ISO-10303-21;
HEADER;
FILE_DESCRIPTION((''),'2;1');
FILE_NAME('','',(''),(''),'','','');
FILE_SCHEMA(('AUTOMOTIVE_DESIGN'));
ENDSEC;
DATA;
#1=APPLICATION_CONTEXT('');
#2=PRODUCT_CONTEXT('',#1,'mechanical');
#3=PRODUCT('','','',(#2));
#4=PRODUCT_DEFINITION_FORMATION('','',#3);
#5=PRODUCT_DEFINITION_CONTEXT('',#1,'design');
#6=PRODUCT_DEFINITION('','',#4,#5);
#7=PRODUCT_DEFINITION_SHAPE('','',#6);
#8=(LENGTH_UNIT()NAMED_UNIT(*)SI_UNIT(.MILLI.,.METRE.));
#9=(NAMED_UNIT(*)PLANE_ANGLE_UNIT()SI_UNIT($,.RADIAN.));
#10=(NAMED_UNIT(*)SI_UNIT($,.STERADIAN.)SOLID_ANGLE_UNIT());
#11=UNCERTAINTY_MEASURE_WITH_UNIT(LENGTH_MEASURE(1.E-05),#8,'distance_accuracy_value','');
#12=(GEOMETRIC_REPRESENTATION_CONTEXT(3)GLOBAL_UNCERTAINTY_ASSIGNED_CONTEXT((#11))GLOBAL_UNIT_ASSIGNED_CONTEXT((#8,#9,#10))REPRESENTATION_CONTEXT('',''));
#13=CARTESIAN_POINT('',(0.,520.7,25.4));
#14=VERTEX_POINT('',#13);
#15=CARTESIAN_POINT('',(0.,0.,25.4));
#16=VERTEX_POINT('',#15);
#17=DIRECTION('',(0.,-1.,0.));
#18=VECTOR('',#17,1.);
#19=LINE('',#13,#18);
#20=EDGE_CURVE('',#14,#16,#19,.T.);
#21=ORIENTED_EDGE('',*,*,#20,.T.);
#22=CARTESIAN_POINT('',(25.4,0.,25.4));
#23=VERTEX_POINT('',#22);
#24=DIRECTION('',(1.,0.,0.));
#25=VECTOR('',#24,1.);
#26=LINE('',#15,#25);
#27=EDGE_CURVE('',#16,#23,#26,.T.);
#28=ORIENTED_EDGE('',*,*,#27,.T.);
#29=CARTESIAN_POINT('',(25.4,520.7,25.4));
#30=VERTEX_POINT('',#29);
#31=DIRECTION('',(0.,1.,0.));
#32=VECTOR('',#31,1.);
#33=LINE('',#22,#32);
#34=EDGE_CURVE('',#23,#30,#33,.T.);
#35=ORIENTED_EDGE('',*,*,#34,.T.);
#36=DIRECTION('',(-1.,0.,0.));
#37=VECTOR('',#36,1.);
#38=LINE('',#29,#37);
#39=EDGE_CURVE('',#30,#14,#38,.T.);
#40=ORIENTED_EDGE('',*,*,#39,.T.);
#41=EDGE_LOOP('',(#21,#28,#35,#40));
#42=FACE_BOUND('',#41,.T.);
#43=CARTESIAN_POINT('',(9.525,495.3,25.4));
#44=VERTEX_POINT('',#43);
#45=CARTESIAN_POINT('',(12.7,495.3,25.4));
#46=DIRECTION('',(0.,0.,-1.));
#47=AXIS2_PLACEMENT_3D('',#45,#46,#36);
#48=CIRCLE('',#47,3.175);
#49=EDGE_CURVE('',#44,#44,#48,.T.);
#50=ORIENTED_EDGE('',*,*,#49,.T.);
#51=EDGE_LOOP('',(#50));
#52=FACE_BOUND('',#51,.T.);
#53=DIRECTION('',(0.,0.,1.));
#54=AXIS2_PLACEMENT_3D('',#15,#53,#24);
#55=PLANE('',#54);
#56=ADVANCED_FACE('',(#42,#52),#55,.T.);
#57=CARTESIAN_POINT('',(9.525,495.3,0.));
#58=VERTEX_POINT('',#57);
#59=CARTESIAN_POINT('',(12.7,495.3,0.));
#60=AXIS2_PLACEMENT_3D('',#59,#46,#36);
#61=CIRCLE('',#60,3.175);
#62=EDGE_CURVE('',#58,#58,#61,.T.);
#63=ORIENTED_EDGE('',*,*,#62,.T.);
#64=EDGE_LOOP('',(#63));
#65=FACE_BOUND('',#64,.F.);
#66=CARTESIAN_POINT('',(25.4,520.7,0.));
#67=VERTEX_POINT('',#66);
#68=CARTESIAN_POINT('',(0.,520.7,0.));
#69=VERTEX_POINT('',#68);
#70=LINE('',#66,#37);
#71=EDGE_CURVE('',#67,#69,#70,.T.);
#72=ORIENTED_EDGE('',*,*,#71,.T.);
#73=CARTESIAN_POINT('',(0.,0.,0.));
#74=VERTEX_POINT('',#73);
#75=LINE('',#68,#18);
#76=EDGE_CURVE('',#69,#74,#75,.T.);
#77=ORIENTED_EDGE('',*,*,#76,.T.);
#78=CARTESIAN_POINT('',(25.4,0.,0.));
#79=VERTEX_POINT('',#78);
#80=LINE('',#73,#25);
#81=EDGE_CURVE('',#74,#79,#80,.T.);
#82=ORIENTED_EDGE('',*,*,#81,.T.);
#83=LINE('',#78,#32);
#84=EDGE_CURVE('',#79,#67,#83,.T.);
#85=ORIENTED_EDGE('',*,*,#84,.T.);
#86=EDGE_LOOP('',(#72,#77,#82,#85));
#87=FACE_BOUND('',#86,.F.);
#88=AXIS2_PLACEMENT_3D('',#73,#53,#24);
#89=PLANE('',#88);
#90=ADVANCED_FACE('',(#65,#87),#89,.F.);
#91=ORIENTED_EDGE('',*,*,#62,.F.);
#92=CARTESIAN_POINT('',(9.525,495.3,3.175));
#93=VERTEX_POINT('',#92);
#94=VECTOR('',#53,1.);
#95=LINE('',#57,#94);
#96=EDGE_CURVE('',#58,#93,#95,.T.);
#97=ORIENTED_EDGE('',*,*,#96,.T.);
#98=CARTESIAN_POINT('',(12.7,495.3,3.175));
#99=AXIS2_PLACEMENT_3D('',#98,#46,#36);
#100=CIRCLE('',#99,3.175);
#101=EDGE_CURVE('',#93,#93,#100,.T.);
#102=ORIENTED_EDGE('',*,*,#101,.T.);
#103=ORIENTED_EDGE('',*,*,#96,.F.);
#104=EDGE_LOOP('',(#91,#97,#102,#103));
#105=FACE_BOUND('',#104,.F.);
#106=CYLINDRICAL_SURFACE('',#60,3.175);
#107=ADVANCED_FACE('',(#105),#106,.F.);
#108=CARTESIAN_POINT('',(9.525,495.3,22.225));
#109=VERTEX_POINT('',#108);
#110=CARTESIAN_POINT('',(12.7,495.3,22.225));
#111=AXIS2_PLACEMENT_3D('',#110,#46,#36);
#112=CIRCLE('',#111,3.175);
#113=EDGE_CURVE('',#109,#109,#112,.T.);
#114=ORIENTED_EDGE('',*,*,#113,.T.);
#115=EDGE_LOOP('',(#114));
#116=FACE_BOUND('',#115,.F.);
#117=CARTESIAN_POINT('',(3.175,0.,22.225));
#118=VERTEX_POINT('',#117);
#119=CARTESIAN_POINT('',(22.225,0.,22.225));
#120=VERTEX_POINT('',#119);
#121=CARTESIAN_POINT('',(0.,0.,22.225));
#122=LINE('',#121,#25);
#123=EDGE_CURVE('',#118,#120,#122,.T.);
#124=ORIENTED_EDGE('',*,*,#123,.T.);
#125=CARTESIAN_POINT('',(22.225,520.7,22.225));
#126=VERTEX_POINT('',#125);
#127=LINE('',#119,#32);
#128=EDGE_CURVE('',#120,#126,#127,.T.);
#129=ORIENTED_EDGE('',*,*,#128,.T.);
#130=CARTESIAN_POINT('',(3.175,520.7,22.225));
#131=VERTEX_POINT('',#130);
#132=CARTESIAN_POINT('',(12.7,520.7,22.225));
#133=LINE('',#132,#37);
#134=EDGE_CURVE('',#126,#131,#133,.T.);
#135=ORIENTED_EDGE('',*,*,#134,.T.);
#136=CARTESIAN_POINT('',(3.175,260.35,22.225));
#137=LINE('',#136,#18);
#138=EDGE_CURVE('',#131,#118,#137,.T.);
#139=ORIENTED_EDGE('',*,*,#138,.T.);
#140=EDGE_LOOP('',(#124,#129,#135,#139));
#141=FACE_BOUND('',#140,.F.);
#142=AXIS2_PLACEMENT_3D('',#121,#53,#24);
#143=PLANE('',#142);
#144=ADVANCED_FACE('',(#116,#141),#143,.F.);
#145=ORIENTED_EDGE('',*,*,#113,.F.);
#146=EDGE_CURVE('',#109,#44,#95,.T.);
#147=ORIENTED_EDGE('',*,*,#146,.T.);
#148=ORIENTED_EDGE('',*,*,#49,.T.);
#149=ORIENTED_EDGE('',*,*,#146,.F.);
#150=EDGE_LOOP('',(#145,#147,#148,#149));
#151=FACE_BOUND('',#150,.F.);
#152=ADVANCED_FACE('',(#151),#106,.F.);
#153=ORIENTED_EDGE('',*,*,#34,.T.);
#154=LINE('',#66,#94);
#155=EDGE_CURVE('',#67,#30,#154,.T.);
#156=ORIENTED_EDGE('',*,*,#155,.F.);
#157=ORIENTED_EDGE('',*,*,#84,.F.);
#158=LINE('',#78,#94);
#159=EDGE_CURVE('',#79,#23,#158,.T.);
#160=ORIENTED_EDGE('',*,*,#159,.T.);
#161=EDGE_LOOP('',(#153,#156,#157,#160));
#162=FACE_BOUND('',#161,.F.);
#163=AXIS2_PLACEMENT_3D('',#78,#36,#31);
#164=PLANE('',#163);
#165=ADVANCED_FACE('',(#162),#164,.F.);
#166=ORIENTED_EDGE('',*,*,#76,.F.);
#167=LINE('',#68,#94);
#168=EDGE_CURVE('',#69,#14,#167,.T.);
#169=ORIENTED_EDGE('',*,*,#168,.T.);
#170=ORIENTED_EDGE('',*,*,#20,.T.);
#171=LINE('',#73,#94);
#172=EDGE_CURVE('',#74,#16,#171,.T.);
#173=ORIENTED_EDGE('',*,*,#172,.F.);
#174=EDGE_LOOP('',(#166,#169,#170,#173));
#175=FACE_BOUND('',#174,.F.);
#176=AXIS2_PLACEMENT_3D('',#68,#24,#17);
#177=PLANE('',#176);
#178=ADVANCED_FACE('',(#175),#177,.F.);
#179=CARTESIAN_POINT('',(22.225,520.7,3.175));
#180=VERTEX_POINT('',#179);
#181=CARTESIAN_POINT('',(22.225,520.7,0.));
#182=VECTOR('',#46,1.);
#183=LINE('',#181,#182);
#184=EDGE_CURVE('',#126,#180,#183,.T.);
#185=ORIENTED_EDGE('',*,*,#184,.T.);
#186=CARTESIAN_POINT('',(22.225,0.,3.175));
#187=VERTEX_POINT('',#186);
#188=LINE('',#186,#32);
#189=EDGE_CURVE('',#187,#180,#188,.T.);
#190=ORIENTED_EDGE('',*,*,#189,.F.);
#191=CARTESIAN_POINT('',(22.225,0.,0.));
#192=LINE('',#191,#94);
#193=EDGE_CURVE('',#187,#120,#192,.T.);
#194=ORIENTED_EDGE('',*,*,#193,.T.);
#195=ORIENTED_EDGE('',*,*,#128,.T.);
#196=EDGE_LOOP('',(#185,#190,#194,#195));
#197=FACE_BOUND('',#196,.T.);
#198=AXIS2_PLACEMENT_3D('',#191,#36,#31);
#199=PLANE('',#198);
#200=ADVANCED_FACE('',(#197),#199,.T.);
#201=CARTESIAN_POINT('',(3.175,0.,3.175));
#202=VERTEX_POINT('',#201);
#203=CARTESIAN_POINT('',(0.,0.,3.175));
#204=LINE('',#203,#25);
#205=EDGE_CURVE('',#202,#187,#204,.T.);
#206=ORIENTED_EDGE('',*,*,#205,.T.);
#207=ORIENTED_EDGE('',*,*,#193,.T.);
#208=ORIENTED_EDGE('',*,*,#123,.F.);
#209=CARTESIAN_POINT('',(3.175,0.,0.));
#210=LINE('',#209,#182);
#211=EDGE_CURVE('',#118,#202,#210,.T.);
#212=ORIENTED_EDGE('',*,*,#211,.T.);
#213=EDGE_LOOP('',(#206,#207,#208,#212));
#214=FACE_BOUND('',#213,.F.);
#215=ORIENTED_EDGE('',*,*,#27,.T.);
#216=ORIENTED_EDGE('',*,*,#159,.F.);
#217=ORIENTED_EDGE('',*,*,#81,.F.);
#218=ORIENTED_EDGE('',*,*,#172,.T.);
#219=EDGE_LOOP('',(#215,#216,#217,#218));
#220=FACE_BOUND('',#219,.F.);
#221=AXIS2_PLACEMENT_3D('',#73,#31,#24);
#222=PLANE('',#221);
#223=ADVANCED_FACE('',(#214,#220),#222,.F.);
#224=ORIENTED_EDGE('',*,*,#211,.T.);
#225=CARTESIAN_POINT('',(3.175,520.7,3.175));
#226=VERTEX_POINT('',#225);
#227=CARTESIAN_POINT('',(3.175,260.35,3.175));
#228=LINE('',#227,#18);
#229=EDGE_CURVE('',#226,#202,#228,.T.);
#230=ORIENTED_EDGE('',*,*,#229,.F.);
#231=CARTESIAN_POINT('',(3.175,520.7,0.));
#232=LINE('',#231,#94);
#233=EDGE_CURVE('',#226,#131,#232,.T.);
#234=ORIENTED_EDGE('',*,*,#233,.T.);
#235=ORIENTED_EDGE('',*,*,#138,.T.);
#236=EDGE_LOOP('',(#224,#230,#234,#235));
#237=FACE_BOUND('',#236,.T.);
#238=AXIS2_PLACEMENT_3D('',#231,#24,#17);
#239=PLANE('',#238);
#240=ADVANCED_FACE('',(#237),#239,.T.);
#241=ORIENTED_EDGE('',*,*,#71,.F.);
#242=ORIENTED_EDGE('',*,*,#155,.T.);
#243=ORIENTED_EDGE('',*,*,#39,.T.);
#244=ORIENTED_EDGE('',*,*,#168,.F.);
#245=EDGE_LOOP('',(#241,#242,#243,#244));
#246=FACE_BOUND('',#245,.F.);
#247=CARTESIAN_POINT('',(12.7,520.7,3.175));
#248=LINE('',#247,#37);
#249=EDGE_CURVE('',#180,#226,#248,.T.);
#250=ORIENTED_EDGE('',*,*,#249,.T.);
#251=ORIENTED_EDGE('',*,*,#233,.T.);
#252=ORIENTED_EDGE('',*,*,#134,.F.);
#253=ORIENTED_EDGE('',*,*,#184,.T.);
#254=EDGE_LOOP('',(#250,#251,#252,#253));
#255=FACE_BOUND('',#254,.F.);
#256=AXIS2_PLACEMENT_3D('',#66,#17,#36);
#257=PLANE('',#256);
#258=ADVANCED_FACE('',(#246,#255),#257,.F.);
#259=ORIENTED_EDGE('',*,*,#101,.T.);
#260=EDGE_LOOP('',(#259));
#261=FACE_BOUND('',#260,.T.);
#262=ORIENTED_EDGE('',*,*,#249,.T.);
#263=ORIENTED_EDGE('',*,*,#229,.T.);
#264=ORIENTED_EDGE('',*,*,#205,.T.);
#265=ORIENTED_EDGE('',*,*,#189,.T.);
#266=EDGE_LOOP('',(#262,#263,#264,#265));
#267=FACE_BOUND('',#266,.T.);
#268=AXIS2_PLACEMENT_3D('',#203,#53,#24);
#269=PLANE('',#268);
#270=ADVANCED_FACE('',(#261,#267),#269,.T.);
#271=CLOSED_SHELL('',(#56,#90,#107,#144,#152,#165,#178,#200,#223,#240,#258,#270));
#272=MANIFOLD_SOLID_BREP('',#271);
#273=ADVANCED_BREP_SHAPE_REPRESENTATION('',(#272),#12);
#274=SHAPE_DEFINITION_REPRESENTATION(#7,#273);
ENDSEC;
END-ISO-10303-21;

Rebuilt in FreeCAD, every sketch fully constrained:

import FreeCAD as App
import Part
import Sketcher
from FreeCAD import Vector
Q = App.Units.Quantity


def faces_at(feature, points):
    """Names of the faces that lie closest to the given points."""
    faces = feature.Shape.Faces
    near = lambda p: min(range(len(faces)), key=lambda i: faces[i].distToShape(Part.Vertex(*p))[0])
    return sorted({f"Face{near(p) + 1}" for p in points})


def add_polygon(sketch, points):
    """Adds a closed chain of lines whose ends are joined by coincident constraints."""
    first, n = sketch.GeometryCount, len(points)
    for a, b in zip(points, points[1:] + points[:1]):
        sketch.addGeometry(Part.LineSegment(App.Vector(*a, 0), App.Vector(*b, 0)), False)
    for i in range(n):
        sketch.addConstraint(Sketcher.Constraint("Coincident", first + i, 2, first + (i + 1) % n, 1))

doc = App.newDocument("Part")
body = doc.addObject("PartDesign::Body", "Body")

# Sketch on XY plane
sketch1 = doc.addObject("Sketcher::SketchObject", "Sketch")
body.addObject(sketch1)
sketch1.AttachmentSupport = (doc.XY_Plane, [""])
sketch1.MapMode = "FlatFace"
add_polygon(sketch1, [(0, 521), (0, 0), (25, 0), (25, 521)])  # lines 0-3
sketch1.addConstraint(Sketcher.Constraint("Vertical", 0))
sketch1.addConstraint(Sketcher.Constraint("Horizontal", 1))
sketch1.addConstraint(Sketcher.Constraint("Vertical", 2))
sketch1.addConstraint(Sketcher.Constraint("Horizontal", 3))
sketch1.addConstraint(Sketcher.Constraint("Coincident", 0, 2, -1, 1))
sketch1.addConstraint(Sketcher.Constraint("DistanceX", 1, 1, 1, 2, Q("1 in")))
sketch1.addConstraint(Sketcher.Constraint("DistanceY", 0, 2, 0, 1, Q("20.5 in")))
pad1 = doc.addObject("PartDesign::Pad", "Pad")
body.addObject(pad1)
pad1.Profile = sketch1
pad1.Length = Q("1 in")
doc.recompute()

thickness = doc.addObject("PartDesign::Thickness", "Thickness")
body.addObject(thickness)
thickness.Base = (pad1, faces_at(pad1, [(16.933, 520.7, 8.467), (8.467, 0, 8.467)]))
thickness.Value = Q("0.125 in")
thickness.Reversed = True
thickness.Join = "Intersection"

# Sketch on XY plane
sketch2 = doc.addObject("Sketcher::SketchObject", "Sketch001")
body.addObject(sketch2)
sketch2.AttachmentSupport = (doc.XY_Plane, [""])
sketch2.MapMode = "FlatFace"
sketch2.addGeometry(Part.Circle(Vector(12.7, 495.3, 0), Vector(0, 0, 1), 3.2), False)
sketch2.addConstraint(Sketcher.Constraint("Diameter", 0, Q("0.25 in")))
sketch2.addConstraint(Sketcher.Constraint("DistanceX", -1, 1, 0, 3, Q("0.5 in")))
sketch2.addConstraint(Sketcher.Constraint("DistanceY", -1, 1, 0, 3, Q("19.5 in")))
pocket1 = doc.addObject("PartDesign::Pocket", "Pocket")
body.addObject(pocket1)
pocket1.Profile = sketch2
pocket1.Type = "ThroughAll"
pocket1.Reversed = True

doc.recompute()
